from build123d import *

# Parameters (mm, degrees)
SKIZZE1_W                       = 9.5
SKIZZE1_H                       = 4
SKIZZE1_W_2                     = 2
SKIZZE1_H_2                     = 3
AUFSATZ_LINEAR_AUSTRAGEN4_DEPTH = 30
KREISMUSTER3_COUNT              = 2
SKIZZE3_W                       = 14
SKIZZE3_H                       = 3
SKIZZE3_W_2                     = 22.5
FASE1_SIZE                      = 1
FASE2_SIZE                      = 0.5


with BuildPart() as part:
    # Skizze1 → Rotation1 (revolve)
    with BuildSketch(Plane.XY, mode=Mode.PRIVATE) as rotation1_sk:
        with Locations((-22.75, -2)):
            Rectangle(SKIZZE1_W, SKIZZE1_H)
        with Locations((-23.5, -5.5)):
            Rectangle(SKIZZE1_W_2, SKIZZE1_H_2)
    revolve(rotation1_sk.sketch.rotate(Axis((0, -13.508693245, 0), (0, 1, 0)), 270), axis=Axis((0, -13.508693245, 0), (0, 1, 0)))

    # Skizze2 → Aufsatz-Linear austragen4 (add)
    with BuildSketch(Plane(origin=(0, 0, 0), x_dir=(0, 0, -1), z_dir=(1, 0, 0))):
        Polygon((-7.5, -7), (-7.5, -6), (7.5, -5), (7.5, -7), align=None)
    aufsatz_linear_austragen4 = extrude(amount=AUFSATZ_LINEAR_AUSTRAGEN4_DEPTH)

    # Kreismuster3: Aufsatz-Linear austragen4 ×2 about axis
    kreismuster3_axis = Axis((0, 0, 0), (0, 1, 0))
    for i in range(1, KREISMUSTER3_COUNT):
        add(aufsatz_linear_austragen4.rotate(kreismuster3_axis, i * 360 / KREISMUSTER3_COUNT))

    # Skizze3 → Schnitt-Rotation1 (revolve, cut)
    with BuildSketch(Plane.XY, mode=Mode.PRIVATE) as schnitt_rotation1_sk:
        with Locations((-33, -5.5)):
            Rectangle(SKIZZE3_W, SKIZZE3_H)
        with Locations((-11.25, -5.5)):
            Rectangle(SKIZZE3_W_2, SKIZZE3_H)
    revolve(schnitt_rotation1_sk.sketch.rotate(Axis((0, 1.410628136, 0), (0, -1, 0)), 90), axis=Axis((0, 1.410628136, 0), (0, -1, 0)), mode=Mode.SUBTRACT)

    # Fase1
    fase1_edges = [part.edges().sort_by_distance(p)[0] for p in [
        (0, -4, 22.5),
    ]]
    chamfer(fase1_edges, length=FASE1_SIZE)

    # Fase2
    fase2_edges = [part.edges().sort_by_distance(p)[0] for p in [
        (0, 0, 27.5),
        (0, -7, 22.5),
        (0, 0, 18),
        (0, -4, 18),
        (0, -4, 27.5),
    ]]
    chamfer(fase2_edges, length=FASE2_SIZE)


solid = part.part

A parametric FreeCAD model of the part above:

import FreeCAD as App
import Part
import Sketcher

V = App.Vector
Q = App.Units.Quantity


def edges_at(feature, points):
    """Names of the edges that pass closest to the given points."""
    edges = feature.Shape.Edges
    near = lambda p: min(range(len(edges)), key=lambda i: edges[i].distToShape(Part.Vertex(*p))[0])
    return sorted({f"Edge{near(p) + 1}" for p in points})

doc = App.newDocument("Part")
body = doc.addObject("PartDesign::Body", "Body")

# Sketch on XY plane
sketch1 = body.newObject("Sketcher::SketchObject", "Sketch")
sketch1.AttachmentSupport = (doc.getObject("XY_Plane"), [""])
sketch1.MapMode = "FlatFace"
sketch1.addGeometry(Part.LineSegment(V(-27.5, 0, 0), V(-27.5, -4, 0)), False)
sketch1.addGeometry(Part.LineSegment(V(-27.5, -4, 0), V(-24.5, -4, 0)), False)
sketch1.addGeometry(Part.LineSegment(V(-24.5, -4, 0), V(-24.5, -7, 0)), False)
sketch1.addGeometry(Part.LineSegment(V(-24.5, -7, 0), V(-22.5, -7, 0)), False)
sketch1.addGeometry(Part.LineSegment(V(-22.5, -7, 0), V(-22.5, -4, 0)), False)
sketch1.addGeometry(Part.LineSegment(V(-22.5, -4, 0), V(-18, -4, 0)), False)
sketch1.addGeometry(Part.LineSegment(V(-18, -4, 0), V(-18, 0, 0)), False)
sketch1.addGeometry(Part.LineSegment(V(-18, 0, 0), V(-27.5, 0, 0)), False)
sketch1.addConstraint(Sketcher.Constraint("Coincident", 0, 2, 1, 1))
sketch1.addConstraint(Sketcher.Constraint("Coincident", 1, 2, 2, 1))
sketch1.addConstraint(Sketcher.Constraint("Coincident", 2, 2, 3, 1))
sketch1.addConstraint(Sketcher.Constraint("Coincident", 3, 2, 4, 1))
sketch1.addConstraint(Sketcher.Constraint("Coincident", 4, 2, 5, 1))
sketch1.addConstraint(Sketcher.Constraint("Coincident", 5, 2, 6, 1))
sketch1.addConstraint(Sketcher.Constraint("Coincident", 6, 2, 7, 1))
sketch1.addConstraint(Sketcher.Constraint("Coincident", 7, 2, 0, 1))
sketch1.addConstraint(Sketcher.Constraint("Vertical", 0))
sketch1.addConstraint(Sketcher.Constraint("Horizontal", 1))
sketch1.addConstraint(Sketcher.Constraint("Vertical", 2))
sketch1.addConstraint(Sketcher.Constraint("Horizontal", 3))
sketch1.addConstraint(Sketcher.Constraint("Vertical", 4))
sketch1.addConstraint(Sketcher.Constraint("Horizontal", 5))
sketch1.addConstraint(Sketcher.Constraint("Vertical", 6))
sketch1.addConstraint(Sketcher.Constraint("Horizontal", 7))
sketch1.addConstraint(Sketcher.Constraint("PointOnObject", 6, 2, -1))
sketch1.addConstraint(Sketcher.Constraint("Horizontal", 1, 2, 4, 2))
sketch1.addConstraint(Sketcher.Constraint("Equal", 1, 2))
sketch1.addConstraint(Sketcher.Constraint("DistanceX", 1, 1, 1, 2, Q("3 mm")))
sketch1.addConstraint(Sketcher.Constraint("DistanceX", 3, 1, 3, 2, Q("2 mm")))
sketch1.addConstraint(Sketcher.Constraint("DistanceY", 0, 2, 0, 1, Q("4 mm")))
sketch1.addConstraint(Sketcher.Constraint("DistanceX", 5, 1, 5, 2, Q("4.5 mm")))
sketch1.addConstraint(Sketcher.Constraint("DistanceX", 5, 2, -1, 1, Q("18 mm")))
revolution = body.newObject("PartDesign::Revolution", "Revolution")
revolution.Profile = sketch1
revolution.ReferenceAxis = (sketch1, ["V_Axis"])
revolution.Angle = 360

# Sketch on YZ plane
sketch2 = body.newObject("Sketcher::SketchObject", "Sketch001")
sketch2.AttachmentSupport = (doc.getObject("YZ_Plane"), [""])
sketch2.MapMode = "FlatFace"
sketch2.addGeometry(Part.LineSegment(V(-6, 7.5, 0), V(-7, 7.5, 0)), False)
sketch2.addGeometry(Part.LineSegment(V(-7, 7.5, 0), V(-7, -7.5, 0)), False)
sketch2.addGeometry(Part.LineSegment(V(-7, -7.5, 0), V(-5, -7.5, 0)), False)
sketch2.addGeometry(Part.LineSegment(V(-5, -7.5, 0), V(-6, 7.5, 0)), False)
sketch2.addConstraint(Sketcher.Constraint("Coincident", 0, 2, 1, 1))
sketch2.addConstraint(Sketcher.Constraint("Coincident", 1, 2, 2, 1))
sketch2.addConstraint(Sketcher.Constraint("Coincident", 2, 2, 3, 1))
sketch2.addConstraint(Sketcher.Constraint("Coincident", 3, 2, 0, 1))
sketch2.addConstraint(Sketcher.Constraint("Horizontal", 0))
sketch2.addConstraint(Sketcher.Constraint("Vertical", 1))
sketch2.addConstraint(Sketcher.Constraint("Horizontal", 2))
sketch2.addConstraint(Sketcher.Constraint("DistanceX", 0, 2, 0, 1, Q("1 mm")))
sketch2.addConstraint(Sketcher.Constraint("DistanceX", 2, 1, 2, 2, Q("2 mm")))
sketch2.addConstraint(Sketcher.Constraint("DistanceY", 1, 2, 1, 1, Q("15 mm")))
sketch2.addConstraint(Sketcher.Constraint("DistanceX", 0, 2, -1, 1, Q("7 mm")))
sketch2.addConstraint(Sketcher.Constraint("DistanceY", -1, 1, 0, 2, Q("7.5 mm")))
pad1 = body.newObject("PartDesign::Pad", "Pad")
pad1.Profile = sketch2
pad1.Length = 30
doc.recompute()

polarpattern = body.newObject("PartDesign::PolarPattern", "PolarPattern")
polarpattern.Originals = [pad1]
polarpattern.Axis = (doc.getObject("Y_Axis"), [""])
polarpattern.Angle = 360
polarpattern.Occurrences = 2
body.Tip = polarpattern

# Sketch on XY plane
sketch3 = body.newObject("Sketcher::SketchObject", "Sketch002")
sketch3.AttachmentSupport = (doc.getObject("XY_Plane"), [""])
sketch3.MapMode = "FlatFace"
sketch3.addGeometry(Part.LineSegment(V(-40, -4, 0), V(-40, -7, 0)), False)
sketch3.addGeometry(Part.LineSegment(V(-40, -7, 0), V(-26, -7, 0)), False)
sketch3.addGeometry(Part.LineSegment(V(-26, -7, 0), V(-26, -4, 0)), False)
sketch3.addGeometry(Part.LineSegment(V(-26, -4, 0), V(-40, -4, 0)), False)
sketch3.addGeometry(Part.LineSegment(V(-22.5, -4, 0), V(-22.5, -7, 0)), False)
sketch3.addGeometry(Part.LineSegment(V(-22.5, -7, 0), V(0, -7, 0)), False)
sketch3.addGeometry(Part.LineSegment(V(0, -7, 0), V(0, -4, 0)), False)
sketch3.addGeometry(Part.LineSegment(V(0, -4, 0), V(-22.5, -4, 0)), False)
sketch3.addConstraint(Sketcher.Constraint("Coincident", 0, 2, 1, 1))
sketch3.addConstraint(Sketcher.Constraint("Coincident", 1, 2, 2, 1))
sketch3.addConstraint(Sketcher.Constraint("Coincident", 2, 2, 3, 1))
sketch3.addConstraint(Sketcher.Constraint("Coincident", 3, 2, 0, 1))
sketch3.addConstraint(Sketcher.Constraint("Coincident", 4, 2, 5, 1))
sketch3.addConstraint(Sketcher.Constraint("Coincident", 5, 2, 6, 1))
sketch3.addConstraint(Sketcher.Constraint("Coincident", 6, 2, 7, 1))
sketch3.addConstraint(Sketcher.Constraint("Coincident", 7, 2, 4, 1))
sketch3.addConstraint(Sketcher.Constraint("Vertical", 0))
sketch3.addConstraint(Sketcher.Constraint("Horizontal", 1))
sketch3.addConstraint(Sketcher.Constraint("Vertical", 2))
sketch3.addConstraint(Sketcher.Constraint("Horizontal", 3))
sketch3.addConstraint(Sketcher.Constraint("Vertical", 4))
sketch3.addConstraint(Sketcher.Constraint("Horizontal", 5))
sketch3.addConstraint(Sketcher.Constraint("Vertical", 6))
sketch3.addConstraint(Sketcher.Constraint("Horizontal", 7))
sketch3.addConstraint(Sketcher.Constraint("PointOnObject", 5, 2, -2))
sketch3.addConstraint(Sketcher.Constraint("Horizontal", 1, 2, 4, 2))
sketch3.addConstraint(Sketcher.Constraint("Horizontal", 3, 2, 6, 2))
sketch3.addConstraint(Sketcher.Constraint("DistanceX", 1, 1, 1, 2, Q("14 mm")))
sketch3.addConstraint(Sketcher.Constraint("DistanceY", 0, 2, 0, 1, Q("3 mm")))
sketch3.addConstraint(Sketcher.Constraint("DistanceX", 5, 1, 5, 2, Q("22.5 mm")))
sketch3.addConstraint(Sketcher.Constraint("DistanceX", 0, 2, -1, 1, Q("40 mm")))
sketch3.addConstraint(Sketcher.Constraint("DistanceY", 0, 2, -1, 1, Q("7 mm")))
groove = body.newObject("PartDesign::Groove", "Groove")
groove.Profile = sketch3
groove.ReferenceAxis = (sketch3, ["V_Axis"])
groove.Angle = 360
doc.recompute()

chamfer = body.newObject("PartDesign::Chamfer", "Chamfer")
chamfer.Base = (groove, edges_at(groove, [(0, -4, 22.5)]))
chamfer.Size = 1
doc.recompute()

chamfer2 = body.newObject("PartDesign::Chamfer", "Chamfer001")
chamfer2.Base = (chamfer, edges_at(chamfer, [
    (0, 0, 27.5),
    (0, -7, 22.5),
    (0, 0, 18),
    (0, -4, 18),
    (0, -4, 27.5),
]))
chamfer2.Size = 0.5

doc.recompute()
